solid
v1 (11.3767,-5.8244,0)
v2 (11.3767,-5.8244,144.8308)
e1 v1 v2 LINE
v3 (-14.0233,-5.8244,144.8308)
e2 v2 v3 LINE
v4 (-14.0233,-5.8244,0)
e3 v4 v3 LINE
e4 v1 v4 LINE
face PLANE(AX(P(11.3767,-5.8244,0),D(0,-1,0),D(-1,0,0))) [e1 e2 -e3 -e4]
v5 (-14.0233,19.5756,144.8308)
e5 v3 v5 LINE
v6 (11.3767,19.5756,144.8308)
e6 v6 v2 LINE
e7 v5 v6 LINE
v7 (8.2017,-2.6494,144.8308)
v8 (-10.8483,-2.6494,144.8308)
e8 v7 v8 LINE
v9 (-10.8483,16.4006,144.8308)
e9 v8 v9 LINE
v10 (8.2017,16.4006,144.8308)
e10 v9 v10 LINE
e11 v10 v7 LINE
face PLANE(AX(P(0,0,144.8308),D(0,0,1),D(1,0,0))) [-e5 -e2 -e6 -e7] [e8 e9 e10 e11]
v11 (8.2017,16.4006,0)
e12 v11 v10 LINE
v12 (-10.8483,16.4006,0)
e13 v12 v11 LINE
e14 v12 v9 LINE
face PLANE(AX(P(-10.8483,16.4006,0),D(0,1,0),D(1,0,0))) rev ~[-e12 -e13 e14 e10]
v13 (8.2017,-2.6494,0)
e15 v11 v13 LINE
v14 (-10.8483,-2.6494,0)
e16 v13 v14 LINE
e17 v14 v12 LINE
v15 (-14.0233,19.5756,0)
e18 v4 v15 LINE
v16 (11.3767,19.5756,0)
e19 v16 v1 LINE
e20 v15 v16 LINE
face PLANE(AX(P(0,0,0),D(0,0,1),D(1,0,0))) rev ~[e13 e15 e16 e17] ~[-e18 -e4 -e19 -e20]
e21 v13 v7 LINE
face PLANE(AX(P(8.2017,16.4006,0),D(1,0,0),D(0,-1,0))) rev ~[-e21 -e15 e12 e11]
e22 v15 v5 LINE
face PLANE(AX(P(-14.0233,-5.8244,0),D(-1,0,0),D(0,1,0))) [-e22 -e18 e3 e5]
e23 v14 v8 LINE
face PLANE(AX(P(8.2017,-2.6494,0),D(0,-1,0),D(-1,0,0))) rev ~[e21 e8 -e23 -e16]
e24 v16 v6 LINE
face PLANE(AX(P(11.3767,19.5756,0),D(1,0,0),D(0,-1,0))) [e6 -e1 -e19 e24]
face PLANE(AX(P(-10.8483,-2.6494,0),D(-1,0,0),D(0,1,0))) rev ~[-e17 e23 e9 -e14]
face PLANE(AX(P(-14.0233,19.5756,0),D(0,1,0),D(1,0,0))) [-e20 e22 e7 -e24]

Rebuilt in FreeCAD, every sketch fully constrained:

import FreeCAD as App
import Part
import Sketcher
Q = App.Units.Quantity


def add_polygon(sketch, points):
    """Adds a closed chain of lines whose ends are joined by coincident constraints."""
    first, n = sketch.GeometryCount, len(points)
    for a, b in zip(points, points[1:] + points[:1]):
        sketch.addGeometry(Part.LineSegment(App.Vector(*a, 0), App.Vector(*b, 0)), False)
    for i in range(n):
        sketch.addConstraint(Sketcher.Constraint("Coincident", first + i, 2, first + (i + 1) % n, 1))

doc = App.newDocument("Part")
params = doc.addObject("Spreadsheet::Sheet", "Params")
for row, (alias, value) in enumerate([
    ("sketch1_width", "1 in"),
    ("pad1_length", "5.702 in"),
], start=1):
    params.set(f"A{row}", alias)
    params.set(f"B{row}", "=" + value)
    params.setAlias(f"B{row}", alias)

body = doc.addObject("PartDesign::Body", "Body")

# Sketch on XY plane
sketch1 = doc.addObject("Sketcher::SketchObject", "Sketch")
body.addObject(sketch1)
sketch1.AttachmentSupport = (doc.XY_Plane, [""])
sketch1.MapMode = "FlatFace"
add_polygon(sketch1, [(11.3767, 19.5756), (-14.0233, 19.5756), (-14.0233, -5.8244), (11.3767, -5.8244)])  # lines 0-3
add_polygon(sketch1, [(-10.8483, -2.6494), (-10.8483, 16.4006), (8.2017, 16.4006), (8.2017, -2.6494)])  # lines 4-7
sketch1.addConstraint([
    Sketcher.Constraint("Horizontal", 0),
    Sketcher.Constraint("Vertical", 1),
    Sketcher.Constraint("Horizontal", 2),
    Sketcher.Constraint("Vertical", 3),
    Sketcher.Constraint("Vertical", 4),
    Sketcher.Constraint("Horizontal", 5),
    Sketcher.Constraint("Vertical", 6),
    Sketcher.Constraint("Horizontal", 7),
    Sketcher.Constraint("Equal", 2, 1),
    Sketcher.Constraint("Equal", 7, 4),
    Sketcher.Constraint("DistanceX", 0, 2, 0, 1, Q("1 in")),
    Sketcher.Constraint("DistanceX", 0, 2, 4, 2, Q("0.125 in")),
    Sketcher.Constraint("DistanceY", 4, 2, 0, 2, Q("0.125 in")),
    Sketcher.Constraint("DistanceX", 5, 2, 3, 2, Q("0.125 in")),
    Sketcher.Constraint("DistanceX", 0, 2, -1, 1, Q("0.5521 in")),
    Sketcher.Constraint("DistanceY", -1, 1, 0, 2, Q("0.7707 in")),
])
sketch1.setExpression("Constraints[18]", "Params.sketch1_width")
pad1 = doc.addObject("PartDesign::Pad", "Pad")
body.addObject(pad1)
pad1.Profile = sketch1
pad1.setExpression("Length", "Params.pad1_length")

doc.recompute()
